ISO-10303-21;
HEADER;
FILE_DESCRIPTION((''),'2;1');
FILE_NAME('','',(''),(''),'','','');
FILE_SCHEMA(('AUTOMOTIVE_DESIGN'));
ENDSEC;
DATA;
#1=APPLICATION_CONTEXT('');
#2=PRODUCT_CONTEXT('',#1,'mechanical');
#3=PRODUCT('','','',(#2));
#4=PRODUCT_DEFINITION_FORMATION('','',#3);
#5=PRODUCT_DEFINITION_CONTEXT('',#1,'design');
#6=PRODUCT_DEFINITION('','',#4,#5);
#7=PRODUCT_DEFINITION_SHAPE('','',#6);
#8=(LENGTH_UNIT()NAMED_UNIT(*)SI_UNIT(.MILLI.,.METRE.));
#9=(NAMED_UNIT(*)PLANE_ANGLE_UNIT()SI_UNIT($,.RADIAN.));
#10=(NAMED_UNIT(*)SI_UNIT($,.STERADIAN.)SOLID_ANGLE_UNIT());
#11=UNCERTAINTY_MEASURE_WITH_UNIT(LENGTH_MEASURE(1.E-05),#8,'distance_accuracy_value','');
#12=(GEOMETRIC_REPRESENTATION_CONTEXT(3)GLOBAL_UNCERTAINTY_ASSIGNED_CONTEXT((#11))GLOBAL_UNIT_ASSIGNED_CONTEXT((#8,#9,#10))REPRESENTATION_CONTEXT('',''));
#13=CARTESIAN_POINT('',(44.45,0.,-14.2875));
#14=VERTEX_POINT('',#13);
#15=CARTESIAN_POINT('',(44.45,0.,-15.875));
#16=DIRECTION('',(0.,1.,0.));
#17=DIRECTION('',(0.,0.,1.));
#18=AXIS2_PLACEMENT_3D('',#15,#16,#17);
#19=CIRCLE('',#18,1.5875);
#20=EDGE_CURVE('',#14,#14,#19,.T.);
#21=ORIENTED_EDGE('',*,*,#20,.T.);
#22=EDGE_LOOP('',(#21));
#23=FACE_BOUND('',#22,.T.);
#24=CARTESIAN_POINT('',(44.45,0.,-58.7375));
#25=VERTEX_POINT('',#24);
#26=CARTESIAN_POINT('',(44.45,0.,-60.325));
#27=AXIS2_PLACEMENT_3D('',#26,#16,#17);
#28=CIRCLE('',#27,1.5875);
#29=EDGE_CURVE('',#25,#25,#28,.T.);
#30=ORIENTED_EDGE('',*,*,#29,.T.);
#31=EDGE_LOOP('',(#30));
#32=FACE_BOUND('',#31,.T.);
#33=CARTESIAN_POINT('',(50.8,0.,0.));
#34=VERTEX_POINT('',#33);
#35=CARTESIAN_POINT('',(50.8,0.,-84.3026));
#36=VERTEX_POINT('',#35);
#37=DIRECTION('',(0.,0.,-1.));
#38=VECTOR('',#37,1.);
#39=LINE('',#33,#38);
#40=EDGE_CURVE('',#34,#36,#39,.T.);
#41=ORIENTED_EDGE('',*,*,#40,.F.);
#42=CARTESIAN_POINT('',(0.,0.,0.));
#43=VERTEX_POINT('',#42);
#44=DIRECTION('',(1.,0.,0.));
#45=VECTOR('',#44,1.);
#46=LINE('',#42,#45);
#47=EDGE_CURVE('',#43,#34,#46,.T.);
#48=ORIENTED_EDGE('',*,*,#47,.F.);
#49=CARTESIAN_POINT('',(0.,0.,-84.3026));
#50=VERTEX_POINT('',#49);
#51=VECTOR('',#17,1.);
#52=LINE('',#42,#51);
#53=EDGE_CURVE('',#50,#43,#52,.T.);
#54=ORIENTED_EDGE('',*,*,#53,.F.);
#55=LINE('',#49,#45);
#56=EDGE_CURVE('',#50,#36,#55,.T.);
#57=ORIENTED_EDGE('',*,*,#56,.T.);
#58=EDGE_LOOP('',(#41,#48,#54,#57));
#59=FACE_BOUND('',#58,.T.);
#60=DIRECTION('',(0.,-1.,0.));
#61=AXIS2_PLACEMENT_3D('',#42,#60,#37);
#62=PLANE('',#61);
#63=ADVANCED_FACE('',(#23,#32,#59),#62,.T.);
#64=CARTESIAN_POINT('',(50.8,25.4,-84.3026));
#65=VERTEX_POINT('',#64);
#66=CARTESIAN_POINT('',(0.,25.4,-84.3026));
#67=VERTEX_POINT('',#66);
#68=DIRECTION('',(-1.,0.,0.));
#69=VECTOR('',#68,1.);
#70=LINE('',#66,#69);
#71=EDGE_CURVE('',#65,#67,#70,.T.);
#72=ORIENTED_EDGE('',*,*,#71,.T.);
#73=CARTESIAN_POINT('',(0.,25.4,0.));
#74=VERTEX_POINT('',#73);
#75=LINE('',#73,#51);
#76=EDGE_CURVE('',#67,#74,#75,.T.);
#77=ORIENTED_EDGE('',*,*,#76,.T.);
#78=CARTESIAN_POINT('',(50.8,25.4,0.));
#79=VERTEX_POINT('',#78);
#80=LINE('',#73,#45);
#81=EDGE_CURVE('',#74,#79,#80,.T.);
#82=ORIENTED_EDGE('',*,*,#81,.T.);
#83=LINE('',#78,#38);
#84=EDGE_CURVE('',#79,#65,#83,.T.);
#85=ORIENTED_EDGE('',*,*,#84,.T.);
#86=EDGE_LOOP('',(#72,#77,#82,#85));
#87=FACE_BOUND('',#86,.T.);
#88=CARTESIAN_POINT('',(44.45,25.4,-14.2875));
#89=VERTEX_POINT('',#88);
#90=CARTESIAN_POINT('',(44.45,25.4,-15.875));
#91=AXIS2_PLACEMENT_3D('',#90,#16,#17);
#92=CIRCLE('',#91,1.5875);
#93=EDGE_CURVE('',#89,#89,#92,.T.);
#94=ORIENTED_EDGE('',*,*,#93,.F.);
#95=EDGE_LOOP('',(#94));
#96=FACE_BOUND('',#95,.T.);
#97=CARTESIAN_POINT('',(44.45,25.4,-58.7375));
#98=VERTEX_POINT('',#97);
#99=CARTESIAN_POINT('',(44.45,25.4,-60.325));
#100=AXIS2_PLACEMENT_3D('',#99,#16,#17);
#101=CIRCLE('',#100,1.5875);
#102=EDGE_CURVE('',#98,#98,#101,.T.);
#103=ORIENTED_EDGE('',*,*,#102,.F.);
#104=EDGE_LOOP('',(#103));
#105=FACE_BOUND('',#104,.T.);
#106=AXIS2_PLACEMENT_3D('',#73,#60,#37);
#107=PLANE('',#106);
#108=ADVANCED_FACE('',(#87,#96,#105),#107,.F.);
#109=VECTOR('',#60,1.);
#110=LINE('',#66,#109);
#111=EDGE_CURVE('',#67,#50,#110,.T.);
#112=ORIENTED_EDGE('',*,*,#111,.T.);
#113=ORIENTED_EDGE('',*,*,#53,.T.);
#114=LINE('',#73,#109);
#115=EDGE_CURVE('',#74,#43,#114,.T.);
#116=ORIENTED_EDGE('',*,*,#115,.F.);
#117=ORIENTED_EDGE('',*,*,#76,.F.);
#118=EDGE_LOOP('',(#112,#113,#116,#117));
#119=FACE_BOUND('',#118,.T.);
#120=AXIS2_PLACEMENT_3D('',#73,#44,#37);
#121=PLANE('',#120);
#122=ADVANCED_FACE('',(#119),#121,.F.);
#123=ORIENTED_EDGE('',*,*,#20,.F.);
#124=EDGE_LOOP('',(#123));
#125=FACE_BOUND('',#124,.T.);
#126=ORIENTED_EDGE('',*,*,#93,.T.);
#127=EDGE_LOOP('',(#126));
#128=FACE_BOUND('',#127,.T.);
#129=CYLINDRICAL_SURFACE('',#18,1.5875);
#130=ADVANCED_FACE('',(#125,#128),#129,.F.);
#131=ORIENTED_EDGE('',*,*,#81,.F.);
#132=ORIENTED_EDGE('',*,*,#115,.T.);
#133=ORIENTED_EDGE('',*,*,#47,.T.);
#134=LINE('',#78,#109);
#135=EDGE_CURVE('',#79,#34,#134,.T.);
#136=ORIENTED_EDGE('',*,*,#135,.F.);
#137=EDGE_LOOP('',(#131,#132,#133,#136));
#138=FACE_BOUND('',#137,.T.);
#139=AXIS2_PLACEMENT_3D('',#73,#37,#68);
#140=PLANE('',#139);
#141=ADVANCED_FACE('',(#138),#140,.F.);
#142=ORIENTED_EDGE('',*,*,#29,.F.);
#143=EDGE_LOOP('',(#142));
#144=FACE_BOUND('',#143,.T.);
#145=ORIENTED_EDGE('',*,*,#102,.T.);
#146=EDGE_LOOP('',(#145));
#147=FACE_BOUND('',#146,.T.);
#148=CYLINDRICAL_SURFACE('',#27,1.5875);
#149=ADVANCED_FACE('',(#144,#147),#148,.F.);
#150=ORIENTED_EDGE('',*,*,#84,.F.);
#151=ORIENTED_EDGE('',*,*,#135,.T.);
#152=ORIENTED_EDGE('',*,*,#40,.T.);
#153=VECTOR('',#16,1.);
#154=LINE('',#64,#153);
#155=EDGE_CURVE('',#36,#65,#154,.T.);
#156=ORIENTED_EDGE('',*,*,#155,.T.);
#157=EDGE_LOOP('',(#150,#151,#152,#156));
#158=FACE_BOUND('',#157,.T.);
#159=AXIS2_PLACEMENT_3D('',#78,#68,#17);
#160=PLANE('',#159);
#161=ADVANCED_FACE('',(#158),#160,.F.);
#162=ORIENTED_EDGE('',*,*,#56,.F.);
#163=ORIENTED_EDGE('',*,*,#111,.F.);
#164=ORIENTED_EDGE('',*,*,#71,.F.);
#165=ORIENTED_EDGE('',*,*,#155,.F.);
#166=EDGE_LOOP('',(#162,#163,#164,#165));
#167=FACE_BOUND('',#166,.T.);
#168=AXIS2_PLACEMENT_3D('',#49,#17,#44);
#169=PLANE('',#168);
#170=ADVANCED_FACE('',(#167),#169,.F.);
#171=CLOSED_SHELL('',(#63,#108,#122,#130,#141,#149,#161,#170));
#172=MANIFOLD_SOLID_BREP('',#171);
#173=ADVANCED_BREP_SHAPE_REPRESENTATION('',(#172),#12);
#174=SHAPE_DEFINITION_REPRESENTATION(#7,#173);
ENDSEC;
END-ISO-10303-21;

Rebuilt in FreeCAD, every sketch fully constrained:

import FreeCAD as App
import Part
import Sketcher
from FreeCAD import Vector
Q = App.Units.Quantity

doc = App.newDocument("Part")
body = doc.addObject("PartDesign::Body", "Body")

# Sketch on XZ plane
sketch1 = body.newObject("Sketcher::SketchObject", "Sketch")
sketch1.AttachmentSupport = (doc.getObject("XZ_Plane"), [""])
sketch1.MapMode = "FlatFace"
sketch1.addGeometry(Part.LineSegment(Vector(0, -76.2, 0), Vector(0, 0, 0)), False)
sketch1.addGeometry(Part.LineSegment(Vector(0, 0, 0), Vector(50.8, 0, 0)), False)
sketch1.addGeometry(Part.LineSegment(Vector(50.8, 0, 0), Vector(50.8, -76.2, 0)), False)
sketch1.addGeometry(Part.LineSegment(Vector(50.8, -76.2, 0), Vector(0, -76.2, 0)), False)
sketch1.addConstraint(Sketcher.Constraint("Coincident", 0, 2, 1, 1))
sketch1.addConstraint(Sketcher.Constraint("Coincident", 1, 2, 2, 1))
sketch1.addConstraint(Sketcher.Constraint("Coincident", 2, 2, 3, 1))
sketch1.addConstraint(Sketcher.Constraint("Coincident", 3, 2, 0, 1))
sketch1.addConstraint(Sketcher.Constraint("Vertical", 0))
sketch1.addConstraint(Sketcher.Constraint("Horizontal", 1))
sketch1.addConstraint(Sketcher.Constraint("Vertical", 2))
sketch1.addConstraint(Sketcher.Constraint("Horizontal", 3))
sketch1.addConstraint(Sketcher.Constraint("Coincident", 0, 2, -1, 1))
sketch1.addConstraint(Sketcher.Constraint("DistanceX", 1, 1, 1, 2, Q("2 in")))
sketch1.addConstraint(Sketcher.Constraint("DistanceY", 0, 1, 0, 2, Q("3 in")))
pad1 = body.newObject("PartDesign::Pad", "Pad")
pad1.Profile = sketch1
pad1.Length = Q("1 in")
pad1.Reversed = True

# Sketch on XZ plane
sketch2 = body.newObject("Sketcher::SketchObject", "Sketch001")
sketch2.AttachmentSupport = (doc.getObject("XZ_Plane"), [""])
sketch2.MapMode = "FlatFace"
sketch2.AttachmentOffset = App.Placement(Vector(0, 0, -1 * 25.4), App.Rotation())
sketch2.addGeometry(Part.Circle(Vector(44.45, -60.325, 0), Vector(0, 0, 1), 1.5875), False)
sketch2.addGeometry(Part.Circle(Vector(44.45, -15.875, 0), Vector(0, 0, 1), 1.5875), False)
sketch2.addConstraint(Sketcher.Constraint("Equal", 0, 1))
sketch2.addConstraint(Sketcher.Constraint("Vertical", 0, 3, 1, 3))
sketch2.addConstraint(Sketcher.Constraint("Diameter", 0, Q("0.125 in")))
sketch2.addConstraint(Sketcher.Constraint("DistanceX", -1, 1, 0, 3, Q("1.75 in")))
sketch2.addConstraint(Sketcher.Constraint("DistanceY", 0, 3, 1, 3, Q("1.75 in")))
sketch2.addConstraint(Sketcher.Constraint("DistanceY", 0, 3, -1, 1, Q("2.375 in")))
pocket1 = body.newObject("PartDesign::Pocket", "Pocket")
pocket1.Profile = sketch2
pocket1.Type = "ThroughAll"
pocket1.Reversed = True

# Sketch on XY plane
sketch3 = body.newObject("Sketcher::SketchObject", "Sketch002")
sketch3.AttachmentSupport = (doc.getObject("XY_Plane"), [""])
sketch3.MapMode = "FlatFace"
sketch3.AttachmentOffset = App.Placement(Vector(0, 0, -3 * 25.4), App.Rotation())
sketch3.addGeometry(Part.LineSegment(Vector(0, 25.4, 0), Vector(0, 0, 0)), False)
sketch3.addGeometry(Part.LineSegment(Vector(0, 0, 0), Vector(50.8, 0, 0)), False)
sketch3.addGeometry(Part.LineSegment(Vector(50.8, 0, 0), Vector(50.8, 25.4, 0)), False)
sketch3.addGeometry(Part.LineSegment(Vector(50.8, 25.4, 0), Vector(0, 25.4, 0)), False)
sketch3.addConstraint(Sketcher.Constraint("Coincident", 0, 2, 1, 1))
sketch3.addConstraint(Sketcher.Constraint("Coincident", 1, 2, 2, 1))
sketch3.addConstraint(Sketcher.Constraint("Coincident", 2, 2, 3, 1))
sketch3.addConstraint(Sketcher.Constraint("Coincident", 3, 2, 0, 1))
sketch3.addConstraint(Sketcher.Constraint("Vertical", 0))
sketch3.addConstraint(Sketcher.Constraint("Horizontal", 1))
sketch3.addConstraint(Sketcher.Constraint("Vertical", 2))
sketch3.addConstraint(Sketcher.Constraint("Horizontal", 3))
sketch3.addConstraint(Sketcher.Constraint("Coincident", 0, 2, -1, 1))
sketch3.addConstraint(Sketcher.Constraint("DistanceX", 1, 1, 1, 2, Q("2 in")))
sketch3.addConstraint(Sketcher.Constraint("DistanceY", 0, 2, 0, 1, Q("1 in")))
pad2 = body.newObject("PartDesign::Pad", "Pad001")
pad2.Profile = sketch3
pad2.Length = Q("0.319 in")
pad2.Reversed = True

doc.recompute()
